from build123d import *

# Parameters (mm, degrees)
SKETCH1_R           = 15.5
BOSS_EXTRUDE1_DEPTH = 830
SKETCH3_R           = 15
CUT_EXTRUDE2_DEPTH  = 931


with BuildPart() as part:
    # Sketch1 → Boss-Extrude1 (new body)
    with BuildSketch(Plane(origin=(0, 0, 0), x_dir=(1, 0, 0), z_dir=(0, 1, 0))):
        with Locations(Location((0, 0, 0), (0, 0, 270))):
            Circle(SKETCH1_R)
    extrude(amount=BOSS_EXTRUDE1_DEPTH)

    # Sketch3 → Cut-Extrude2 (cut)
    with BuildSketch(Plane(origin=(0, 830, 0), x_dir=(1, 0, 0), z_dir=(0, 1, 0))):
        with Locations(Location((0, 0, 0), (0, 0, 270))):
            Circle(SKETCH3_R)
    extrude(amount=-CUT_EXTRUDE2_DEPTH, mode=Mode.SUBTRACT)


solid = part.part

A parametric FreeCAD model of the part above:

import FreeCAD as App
import Part
import Sketcher
Q = App.Units.Quantity

doc = App.newDocument("Part")
params = doc.addObject("Spreadsheet::Sheet", "Params")
for row, (alias, value) in enumerate([
    ("sketch1_diameter", "31 mm"),
    ("pad1_length", "830 mm"),
    ("sketch2_diameter", "30 mm"),
    ("pocket1_length", "931 mm"),
], start=1):
    params.set(f"A{row}", alias)
    params.set(f"B{row}", "=" + value)
    params.setAlias(f"B{row}", alias)

body = doc.addObject("PartDesign::Body", "Body")

# Sketch on XZ plane
sketch1 = doc.addObject("Sketcher::SketchObject", "Sketch")
body.addObject(sketch1)
sketch1.AttachmentSupport = (doc.XZ_Plane, [""])
sketch1.MapMode = "FlatFace"
sketch1.addGeometry(Part.Circle(App.Vector(0, 0, 0), App.Vector(0, 0, 1), 16), False)
sketch1.addConstraint([
    Sketcher.Constraint("Coincident", 0, 3, -1, 1),
    Sketcher.Constraint("Diameter", 0, Q("31 mm")),
])
sketch1.setExpression("Constraints[1]", "Params.sketch1_diameter")
pad1 = doc.addObject("PartDesign::Pad", "Pad")
body.addObject(pad1)
pad1.Profile = sketch1
pad1.setExpression("Length", "Params.pad1_length")
pad1.Reversed = True

# Sketch on XZ plane
sketch2 = doc.addObject("Sketcher::SketchObject", "Sketch001")
body.addObject(sketch2)
sketch2.AttachmentSupport = (doc.XZ_Plane, [""])
sketch2.MapMode = "FlatFace"
sketch2.AttachmentOffset = App.Placement(App.Vector(0, 0, -830), App.Rotation())
sketch2.addGeometry(Part.Circle(App.Vector(0, 0, 0), App.Vector(0, 0, 1), 15), False)
sketch2.addConstraint([
    Sketcher.Constraint("Coincident", 0, 3, -1, 1),
    Sketcher.Constraint("Diameter", 0, Q("30 mm")),
])
sketch2.setExpression("Constraints[1]", "Params.sketch2_diameter")
pocket1 = doc.addObject("PartDesign::Pocket", "Pocket")
body.addObject(pocket1)
pocket1.Profile = sketch2
pocket1.setExpression("Length", "Params.pocket1_length")
pocket1.Reversed = True

doc.recompute()
